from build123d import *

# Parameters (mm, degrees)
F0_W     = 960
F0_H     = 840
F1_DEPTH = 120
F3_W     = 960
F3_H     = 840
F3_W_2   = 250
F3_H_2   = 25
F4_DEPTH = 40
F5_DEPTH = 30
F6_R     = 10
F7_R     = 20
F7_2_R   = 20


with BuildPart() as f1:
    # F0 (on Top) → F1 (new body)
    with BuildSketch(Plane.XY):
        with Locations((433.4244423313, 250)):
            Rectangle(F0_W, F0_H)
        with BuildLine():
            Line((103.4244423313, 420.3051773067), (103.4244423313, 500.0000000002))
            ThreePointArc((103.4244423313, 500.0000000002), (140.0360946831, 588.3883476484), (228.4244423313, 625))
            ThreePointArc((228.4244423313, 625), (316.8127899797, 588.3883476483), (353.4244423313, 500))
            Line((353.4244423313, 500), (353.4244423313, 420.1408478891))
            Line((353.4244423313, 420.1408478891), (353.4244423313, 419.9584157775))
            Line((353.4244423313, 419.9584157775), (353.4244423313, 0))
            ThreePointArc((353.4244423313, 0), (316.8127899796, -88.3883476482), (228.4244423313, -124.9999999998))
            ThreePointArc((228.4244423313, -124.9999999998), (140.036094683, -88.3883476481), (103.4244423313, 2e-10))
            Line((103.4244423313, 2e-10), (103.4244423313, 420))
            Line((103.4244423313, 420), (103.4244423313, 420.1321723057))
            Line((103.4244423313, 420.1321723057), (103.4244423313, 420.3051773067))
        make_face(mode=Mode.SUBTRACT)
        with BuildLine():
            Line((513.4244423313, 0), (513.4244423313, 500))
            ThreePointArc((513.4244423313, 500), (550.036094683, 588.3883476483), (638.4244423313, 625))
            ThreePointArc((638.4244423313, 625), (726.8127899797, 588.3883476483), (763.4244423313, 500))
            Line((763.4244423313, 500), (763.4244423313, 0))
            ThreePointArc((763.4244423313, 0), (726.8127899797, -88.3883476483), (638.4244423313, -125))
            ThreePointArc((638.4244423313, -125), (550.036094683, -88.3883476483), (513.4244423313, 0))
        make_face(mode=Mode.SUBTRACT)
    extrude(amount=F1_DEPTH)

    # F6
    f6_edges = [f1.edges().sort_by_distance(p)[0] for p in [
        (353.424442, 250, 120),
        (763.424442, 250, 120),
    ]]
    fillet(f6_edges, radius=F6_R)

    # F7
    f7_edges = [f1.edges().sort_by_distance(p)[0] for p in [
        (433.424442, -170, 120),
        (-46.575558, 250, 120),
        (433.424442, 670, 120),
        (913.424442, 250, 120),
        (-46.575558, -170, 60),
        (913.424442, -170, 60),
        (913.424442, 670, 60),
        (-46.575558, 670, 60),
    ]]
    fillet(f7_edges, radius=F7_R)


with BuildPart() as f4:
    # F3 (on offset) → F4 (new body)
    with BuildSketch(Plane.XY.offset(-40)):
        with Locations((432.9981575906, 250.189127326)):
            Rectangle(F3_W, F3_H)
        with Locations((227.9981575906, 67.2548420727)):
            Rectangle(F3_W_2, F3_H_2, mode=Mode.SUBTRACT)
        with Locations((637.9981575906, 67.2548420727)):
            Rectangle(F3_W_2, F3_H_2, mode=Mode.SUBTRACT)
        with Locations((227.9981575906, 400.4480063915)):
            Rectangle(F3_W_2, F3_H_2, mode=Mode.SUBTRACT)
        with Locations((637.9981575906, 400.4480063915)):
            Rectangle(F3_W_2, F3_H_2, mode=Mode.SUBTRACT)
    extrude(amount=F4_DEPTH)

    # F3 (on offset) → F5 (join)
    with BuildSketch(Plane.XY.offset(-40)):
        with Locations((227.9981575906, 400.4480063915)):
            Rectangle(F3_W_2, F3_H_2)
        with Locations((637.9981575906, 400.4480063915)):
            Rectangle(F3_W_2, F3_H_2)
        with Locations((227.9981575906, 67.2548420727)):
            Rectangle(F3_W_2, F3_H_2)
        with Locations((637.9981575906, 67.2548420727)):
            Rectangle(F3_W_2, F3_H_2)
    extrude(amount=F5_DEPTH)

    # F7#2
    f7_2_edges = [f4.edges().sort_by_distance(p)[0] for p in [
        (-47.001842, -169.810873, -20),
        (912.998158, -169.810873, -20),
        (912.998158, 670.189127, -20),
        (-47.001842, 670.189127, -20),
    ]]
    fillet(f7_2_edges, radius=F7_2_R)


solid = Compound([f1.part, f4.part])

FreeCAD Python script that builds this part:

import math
import FreeCAD as App
import Part
import Sketcher

V = App.Vector


def edges_at(feature, points):
    """Names of the edges that pass closest to the given points."""
    edges = feature.Shape.Edges
    near = lambda p: min(range(len(edges)), key=lambda i: edges[i].distToShape(Part.Vertex(*p))[0])
    return sorted({f"Edge{near(p) + 1}" for p in points})

doc = App.newDocument("Part")
params = doc.addObject("Spreadsheet::Sheet", "Params")
for row, (alias, value) in enumerate([
    ("sketch1_radius", "125 mm"),
    ("sketch1_width", "960 mm"),
    ("sketch1_height", "840 mm"),
    ("sketch1_height2", "500 mm"),
    ("pad1_length", "120 mm"),
    ("fillet_radius", "10 mm"),
    ("fillet2_radius", "20 mm"),
    ("sketch2_width", "960 mm"),
    ("sketch2_width2", "250 mm"),
    ("sketch2_height", "840 mm"),
    ("sketch2_height2", "25 mm"),
    ("pad2_length", "40 mm"),
    ("sketch3_width", "250 mm"),
    ("sketch3_height", "25 mm"),
    ("pad3_length", "30 mm"),
    ("fillet3_radius", "20 mm"),
], start=1):
    params.set(f"A{row}", alias)
    params.set(f"B{row}", "=" + value)
    params.setAlias(f"B{row}", alias)

body = doc.addObject("PartDesign::Body", "Body")

sketch1 = body.newObject("Sketcher::SketchObject", "Sketch")
sketch1.AttachmentSupport = (doc.getObject("XY_Plane"), [""])
sketch1.MapMode = "FlatFace"
sketch1.addGeometry(Part.LineSegment(V(-46.575558, 670, 0), V(-46.575558, -170, 0)), False)
sketch1.addGeometry(Part.LineSegment(V(-46.575558, -170, 0), V(913.424442, -170, 0)), False)
sketch1.addGeometry(Part.LineSegment(V(913.424442, -170, 0), V(913.424442, 670, 0)), False)
sketch1.addGeometry(Part.LineSegment(V(913.424442, 670, 0), V(-46.575558, 670, 0)), False)
sketch1.addGeometry(Part.LineSegment(V(103.424442, 0, 0), V(103.424442, 500, 0)), False)
sketch1.addGeometry(Part.ArcOfCircle(Part.Circle(V(228.424442, 500, 0), V(0, 0, 1), 125), math.radians(0), math.radians(180)), False)
sketch1.addGeometry(Part.LineSegment(V(353.424442, 500, 0), V(353.424442, 0, 0)), False)
sketch1.addGeometry(Part.ArcOfCircle(Part.Circle(V(228.424442, 0, 0), V(0, 0, 1), 125), math.radians(180), math.radians(360)), False)
sketch1.addGeometry(Part.ArcOfCircle(Part.Circle(V(638.424442, 0, 0), V(0, 0, 1), 125), math.radians(180), math.radians(360)), False)
sketch1.addGeometry(Part.LineSegment(V(513.424442, 0, 0), V(513.424442, 500, 0)), False)
sketch1.addGeometry(Part.ArcOfCircle(Part.Circle(V(638.424442, 500, 0), V(0, 0, 1), 125), math.radians(0), math.radians(180)), False)
sketch1.addGeometry(Part.LineSegment(V(763.424442, 500, 0), V(763.424442, 0, 0)), False)
sketch1.addConstraint(Sketcher.Constraint("Coincident", 0, 2, 1, 1))
sketch1.addConstraint(Sketcher.Constraint("Coincident", 1, 2, 2, 1))
sketch1.addConstraint(Sketcher.Constraint("Coincident", 2, 2, 3, 1))
sketch1.addConstraint(Sketcher.Constraint("Coincident", 3, 2, 0, 1))
sketch1.addConstraint(Sketcher.Constraint("Tangent", 4, 2, 5, 2))
sketch1.addConstraint(Sketcher.Constraint("Tangent", 5, 1, 6, 1))
sketch1.addConstraint(Sketcher.Constraint("Tangent", 6, 2, 7, 2))
sketch1.addConstraint(Sketcher.Constraint("Tangent", 7, 1, 4, 1))
sketch1.addConstraint(Sketcher.Constraint("Tangent", 8, 1, 9, 1))
sketch1.addConstraint(Sketcher.Constraint("Tangent", 9, 2, 10, 2))
sketch1.addConstraint(Sketcher.Constraint("Tangent", 10, 1, 11, 1))
sketch1.addConstraint(Sketcher.Constraint("Tangent", 11, 2, 8, 2))
sketch1.addConstraint(Sketcher.Constraint("Vertical", 0))
sketch1.addConstraint(Sketcher.Constraint("Horizontal", 1))
sketch1.addConstraint(Sketcher.Constraint("Vertical", 2))
sketch1.addConstraint(Sketcher.Constraint("Horizontal", 3))
sketch1.addConstraint(Sketcher.Constraint("Vertical", 4))
sketch1.addConstraint(Sketcher.Constraint("Vertical", 6))
sketch1.addConstraint(Sketcher.Constraint("Vertical", 9))
sketch1.addConstraint(Sketcher.Constraint("Vertical", 11))
sketch1.addConstraint(Sketcher.Constraint("Equal", 7, 8))
sketch1.addConstraint(Sketcher.Constraint("PointOnObject", 7, 3, -1))
sketch1.addConstraint(Sketcher.Constraint("PointOnObject", 8, 3, -1))
sketch1.addConstraint(Sketcher.Constraint("Horizontal", 5, 3, 10, 3))
sketch1.addConstraint(Sketcher.Constraint("Radius", 5, 125.0))
sketch1.addConstraint(Sketcher.Constraint("DistanceX", 1, 1, 1, 2, 960.0))
sketch1.addConstraint(Sketcher.Constraint("DistanceY", 0, 2, 0, 1, 840.0))
sketch1.addConstraint(Sketcher.Constraint("DistanceY", 4, 1, 4, 2, 500.0))
sketch1.addConstraint(Sketcher.Constraint("DistanceY", 0, 2, -1, 1, 170.0))
sketch1.addConstraint(Sketcher.Constraint("DistanceX", 7, 3, 8, 3, 410.0))
sketch1.addConstraint(Sketcher.Constraint("DistanceX", 0, 2, 7, 3, 275.0))
sketch1.addConstraint(Sketcher.Constraint("DistanceX", -1, 1, 5, 3, 228.424442))
sketch1.setExpression("Constraints[24]", "Params.sketch1_radius")
sketch1.setExpression("Constraints[25]", "Params.sketch1_width")
sketch1.setExpression("Constraints[26]", "Params.sketch1_height")
sketch1.setExpression("Constraints[27]", "Params.sketch1_height2")
pad1 = body.newObject("PartDesign::Pad", "Pad")
pad1.Profile = sketch1
pad1.setExpression("Length", "Params.pad1_length")
doc.recompute()

fillet = body.newObject("PartDesign::Fillet", "Fillet")
fillet.Base = (pad1, edges_at(pad1, [(353.424, 250, 120), (763.424, 250, 120)]))
fillet.setExpression("Radius", "Params.fillet_radius")
doc.recompute()

fillet2 = body.newObject("PartDesign::Fillet", "Fillet001")
fillet2.Base = (fillet, edges_at(fillet, [
    (433.424, -170, 120),
    (-46.576, 250, 120),
    (433.424, 670, 120),
    (913.424, 250, 120),
    (-46.576, -170, 60),
    (913.424, -170, 60),
    (913.424, 670, 60),
    (-46.576, 670, 60),
]))
fillet2.setExpression("Radius", "Params.fillet2_radius")
body2 = doc.addObject("PartDesign::Body", "Body001")

sketch2 = body2.newObject("Sketcher::SketchObject", "Sketch001")
sketch2.AttachmentSupport = (doc.getObject("XY_Plane001"), [""])
sketch2.MapMode = "FlatFace"
sketch2.AttachmentOffset = App.Placement(V(0, 0, -40), App.Rotation())
sketch2.addGeometry(Part.LineSegment(V(-47.001842, 670.189127, 0), V(-47.001842, -169.810873, 0)), False)
sketch2.addGeometry(Part.LineSegment(V(-47.001842, -169.810873, 0), V(912.998158, -169.810873, 0)), False)
sketch2.addGeometry(Part.LineSegment(V(912.998158, -169.810873, 0), V(912.998158, 670.189127, 0)), False)
sketch2.addGeometry(Part.LineSegment(V(912.998158, 670.189127, 0), V(-47.001842, 670.189127, 0)), False)
sketch2.addGeometry(Part.LineSegment(V(352.998158, 54.754842, 0), V(102.998158, 54.754842, 0)), False)
sketch2.addGeometry(Part.LineSegment(V(102.998158, 54.754842, 0), V(102.998158, 79.754842, 0)), False)
sketch2.addGeometry(Part.LineSegment(V(102.998158, 79.754842, 0), V(352.998158, 79.754842, 0)), False)
sketch2.addGeometry(Part.LineSegment(V(352.998158, 79.754842, 0), V(352.998158, 54.754842, 0)), False)
sketch2.addGeometry(Part.LineSegment(V(762.998158, 54.754842, 0), V(512.998158, 54.754842, 0)), False)
sketch2.addGeometry(Part.LineSegment(V(512.998158, 54.754842, 0), V(512.998158, 79.754842, 0)), False)
sketch2.addGeometry(Part.LineSegment(V(512.998158, 79.754842, 0), V(762.998158, 79.754842, 0)), False)
sketch2.addGeometry(Part.LineSegment(V(762.998158, 79.754842, 0), V(762.998158, 54.754842, 0)), False)
sketch2.addGeometry(Part.LineSegment(V(352.998158, 387.948006, 0), V(102.998158, 387.948006, 0)), False)
sketch2.addGeometry(Part.LineSegment(V(102.998158, 387.948006, 0), V(102.998158, 412.948006, 0)), False)
sketch2.addGeometry(Part.LineSegment(V(102.998158, 412.948006, 0), V(352.998158, 412.948006, 0)), False)
sketch2.addGeometry(Part.LineSegment(V(352.998158, 412.948006, 0), V(352.998158, 387.948006, 0)), False)
sketch2.addGeometry(Part.LineSegment(V(762.998158, 387.948006, 0), V(512.998158, 387.948006, 0)), False)
sketch2.addGeometry(Part.LineSegment(V(512.998158, 387.948006, 0), V(512.998158, 412.948006, 0)), False)
sketch2.addGeometry(Part.LineSegment(V(512.998158, 412.948006, 0), V(762.998158, 412.948006, 0)), False)
sketch2.addGeometry(Part.LineSegment(V(762.998158, 412.948006, 0), V(762.998158, 387.948006, 0)), False)
sketch2.addConstraint(Sketcher.Constraint("Coincident", 0, 2, 1, 1))
sketch2.addConstraint(Sketcher.Constraint("Coincident", 1, 2, 2, 1))
sketch2.addConstraint(Sketcher.Constraint("Coincident", 2, 2, 3, 1))
sketch2.addConstraint(Sketcher.Constraint("Coincident", 3, 2, 0, 1))
sketch2.addConstraint(Sketcher.Constraint("Coincident", 4, 2, 5, 1))
sketch2.addConstraint(Sketcher.Constraint("Coincident", 5, 2, 6, 1))
sketch2.addConstraint(Sketcher.Constraint("Coincident", 6, 2, 7, 1))
sketch2.addConstraint(Sketcher.Constraint("Coincident", 7, 2, 4, 1))
sketch2.addConstraint(Sketcher.Constraint("Coincident", 8, 2, 9, 1))
sketch2.addConstraint(Sketcher.Constraint("Coincident", 9, 2, 10, 1))
sketch2.addConstraint(Sketcher.Constraint("Coincident", 10, 2, 11, 1))
sketch2.addConstraint(Sketcher.Constraint("Coincident", 11, 2, 8, 1))
sketch2.addConstraint(Sketcher.Constraint("Coincident", 12, 2, 13, 1))
sketch2.addConstraint(Sketcher.Constraint("Coincident", 13, 2, 14, 1))
sketch2.addConstraint(Sketcher.Constraint("Coincident", 14, 2, 15, 1))
sketch2.addConstraint(Sketcher.Constraint("Coincident", 15, 2, 12, 1))
sketch2.addConstraint(Sketcher.Constraint("Coincident", 16, 2, 17, 1))
sketch2.addConstraint(Sketcher.Constraint("Coincident", 17, 2, 18, 1))
sketch2.addConstraint(Sketcher.Constraint("Coincident", 18, 2, 19, 1))
sketch2.addConstraint(Sketcher.Constraint("Coincident", 19, 2, 16, 1))
sketch2.addConstraint(Sketcher.Constraint("Vertical", 0))
sketch2.addConstraint(Sketcher.Constraint("Horizontal", 1))
sketch2.addConstraint(Sketcher.Constraint("Vertical", 2))
sketch2.addConstraint(Sketcher.Constraint("Horizontal", 3))
sketch2.addConstraint(Sketcher.Constraint("Horizontal", 4))
sketch2.addConstraint(Sketcher.Constraint("Vertical", 5))
sketch2.addConstraint(Sketcher.Constraint("Horizontal", 6))
sketch2.addConstraint(Sketcher.Constraint("Vertical", 7))
sketch2.addConstraint(Sketcher.Constraint("Horizontal", 8))
sketch2.addConstraint(Sketcher.Constraint("Vertical", 9))
sketch2.addConstraint(Sketcher.Constraint("Horizontal", 10))
sketch2.addConstraint(Sketcher.Constraint("Vertical", 11))
sketch2.addConstraint(Sketcher.Constraint("Horizontal", 12))
sketch2.addConstraint(Sketcher.Constraint("Vertical", 13))
sketch2.addConstraint(Sketcher.Constraint("Horizontal", 14))
sketch2.addConstraint(Sketcher.Constraint("Vertical", 15))
sketch2.addConstraint(Sketcher.Constraint("Horizontal", 16))
sketch2.addConstraint(Sketcher.Constraint("Vertical", 17))
sketch2.addConstraint(Sketcher.Constraint("Horizontal", 18))
sketch2.addConstraint(Sketcher.Constraint("Vertical", 19))
sketch2.addConstraint(Sketcher.Constraint("Horizontal", 7, 2, 8, 2))
sketch2.addConstraint(Sketcher.Constraint("Horizontal", 6, 2, 9, 2))
sketch2.addConstraint(Sketcher.Constraint("Horizontal", 15, 2, 16, 2))
sketch2.addConstraint(Sketcher.Constraint("Horizontal", 14, 2, 17, 2))
sketch2.addConstraint(Sketcher.Constraint("Vertical", 5, 2, 12, 2))
sketch2.addConstraint(Sketcher.Constraint("Vertical", 7, 2, 14, 2))
sketch2.addConstraint(Sketcher.Constraint("Vertical", 9, 2, 16, 2))
sketch2.addConstraint(Sketcher.Constraint("Vertical", 11, 2, 18, 2))
sketch2.addConstraint(Sketcher.Constraint("Equal", 6, 8))
sketch2.addConstraint(Sketcher.Constraint("Equal", 11, 13))
sketch2.addConstraint(Sketcher.Constraint("DistanceX", 1, 1, 1, 2, 960.0))
sketch2.addConstraint(Sketcher.Constraint("DistanceX", 4, 2, 4, 1, 250.0))
sketch2.addConstraint(Sketcher.Constraint("DistanceY", 0, 2, 0, 1, 840.0))
sketch2.addConstraint(Sketcher.Constraint("DistanceY", 5, 1, 5, 2, 25.0))
sketch2.addConstraint(Sketcher.Constraint("DistanceX", 0, 2, 4, 2, 150.0))
sketch2.addConstraint(Sketcher.Constraint("DistanceX", 7, 2, 8, 2, 160.0))
sketch2.addConstraint(Sketcher.Constraint("DistanceY", 12, 2, 3, 2, 282.241121))
sketch2.addConstraint(Sketcher.Constraint("DistanceX", 0, 2, -1, 1, 47.001842))
sketch2.addConstraint(Sketcher.Constraint("DistanceY", 0, 2, -1, 1, 169.810873))
sketch2.addConstraint(Sketcher.Constraint("DistanceY", -1, 1, 4, 2, 54.754842))
sketch2.setExpression("Constraints[50]", "Params.sketch2_width")
sketch2.setExpression("Constraints[51]", "Params.sketch2_width2")
sketch2.setExpression("Constraints[52]", "Params.sketch2_height")
sketch2.setExpression("Constraints[53]", "Params.sketch2_height2")
pad2 = body2.newObject("PartDesign::Pad", "Pad001")
pad2.Profile = sketch2
pad2.setExpression("Length", "Params.pad2_length")

sketch3 = body2.newObject("Sketcher::SketchObject", "Sketch002")
sketch3.AttachmentSupport = (doc.getObject("XY_Plane001"), [""])
sketch3.MapMode = "FlatFace"
sketch3.AttachmentOffset = App.Placement(V(0, 0, -40), App.Rotation())
sketch3.addGeometry(Part.LineSegment(V(102.998158, 412.948006, 0), V(102.998158, 387.948006, 0)), False)
sketch3.addGeometry(Part.LineSegment(V(102.998158, 387.948006, 0), V(352.998158, 387.948006, 0)), False)
sketch3.addGeometry(Part.LineSegment(V(352.998158, 387.948006, 0), V(352.998158, 412.948006, 0)), False)
sketch3.addGeometry(Part.LineSegment(V(352.998158, 412.948006, 0), V(102.998158, 412.948006, 0)), False)
sketch3.addGeometry(Part.LineSegment(V(512.998158, 412.948006, 0), V(512.998158, 387.948006, 0)), False)
sketch3.addGeometry(Part.LineSegment(V(512.998158, 387.948006, 0), V(762.998158, 387.948006, 0)), False)
sketch3.addGeometry(Part.LineSegment(V(762.998158, 387.948006, 0), V(762.998158, 412.948006, 0)), False)
sketch3.addGeometry(Part.LineSegment(V(762.998158, 412.948006, 0), V(512.998158, 412.948006, 0)), False)
sketch3.addGeometry(Part.LineSegment(V(102.998158, 79.754842, 0), V(102.998158, 54.754842, 0)), False)
sketch3.addGeometry(Part.LineSegment(V(102.998158, 54.754842, 0), V(352.998158, 54.754842, 0)), False)
sketch3.addGeometry(Part.LineSegment(V(352.998158, 54.754842, 0), V(352.998158, 79.754842, 0)), False)
sketch3.addGeometry(Part.LineSegment(V(352.998158, 79.754842, 0), V(102.998158, 79.754842, 0)), False)
sketch3.addGeometry(Part.LineSegment(V(512.998158, 79.754842, 0), V(512.998158, 54.754842, 0)), False)
sketch3.addGeometry(Part.LineSegment(V(512.998158, 54.754842, 0), V(762.998158, 54.754842, 0)), False)
sketch3.addGeometry(Part.LineSegment(V(762.998158, 54.754842, 0), V(762.998158, 79.754842, 0)), False)
sketch3.addGeometry(Part.LineSegment(V(762.998158, 79.754842, 0), V(512.998158, 79.754842, 0)), False)
sketch3.addConstraint(Sketcher.Constraint("Coincident", 0, 2, 1, 1))
sketch3.addConstraint(Sketcher.Constraint("Coincident", 1, 2, 2, 1))
sketch3.addConstraint(Sketcher.Constraint("Coincident", 2, 2, 3, 1))
sketch3.addConstraint(Sketcher.Constraint("Coincident", 3, 2, 0, 1))
sketch3.addConstraint(Sketcher.Constraint("Coincident", 4, 2, 5, 1))
sketch3.addConstraint(Sketcher.Constraint("Coincident", 5, 2, 6, 1))
sketch3.addConstraint(Sketcher.Constraint("Coincident", 6, 2, 7, 1))
sketch3.addConstraint(Sketcher.Constraint("Coincident", 7, 2, 4, 1))
sketch3.addConstraint(Sketcher.Constraint("Coincident", 8, 2, 9, 1))
sketch3.addConstraint(Sketcher.Constraint("Coincident", 9, 2, 10, 1))
sketch3.addConstraint(Sketcher.Constraint("Coincident", 10, 2, 11, 1))
sketch3.addConstraint(Sketcher.Constraint("Coincident", 11, 2, 8, 1))
sketch3.addConstraint(Sketcher.Constraint("Coincident", 12, 2, 13, 1))
sketch3.addConstraint(Sketcher.Constraint("Coincident", 13, 2, 14, 1))
sketch3.addConstraint(Sketcher.Constraint("Coincident", 14, 2, 15, 1))
sketch3.addConstraint(Sketcher.Constraint("Coincident", 15, 2, 12, 1))
sketch3.addConstraint(Sketcher.Constraint("Vertical", 0))
sketch3.addConstraint(Sketcher.Constraint("Horizontal", 1))
sketch3.addConstraint(Sketcher.Constraint("Vertical", 2))
sketch3.addConstraint(Sketcher.Constraint("Horizontal", 3))
sketch3.addConstraint(Sketcher.Constraint("Vertical", 4))
sketch3.addConstraint(Sketcher.Constraint("Horizontal", 5))
sketch3.addConstraint(Sketcher.Constraint("Vertical", 6))
sketch3.addConstraint(Sketcher.Constraint("Horizontal", 7))
sketch3.addConstraint(Sketcher.Constraint("Vertical", 8))
sketch3.addConstraint(Sketcher.Constraint("Horizontal", 9))
sketch3.addConstraint(Sketcher.Constraint("Vertical", 10))
sketch3.addConstraint(Sketcher.Constraint("Horizontal", 11))
sketch3.addConstraint(Sketcher.Constraint("Vertical", 12))
sketch3.addConstraint(Sketcher.Constraint("Horizontal", 13))
sketch3.addConstraint(Sketcher.Constraint("Vertical", 14))
sketch3.addConstraint(Sketcher.Constraint("Horizontal", 15))
sketch3.addConstraint(Sketcher.Constraint("Horizontal", 1, 2, 4, 2))
sketch3.addConstraint(Sketcher.Constraint("Horizontal", 3, 2, 6, 2))
sketch3.addConstraint(Sketcher.Constraint("Horizontal", 9, 2, 12, 2))
sketch3.addConstraint(Sketcher.Constraint("Horizontal", 11, 2, 14, 2))
sketch3.addConstraint(Sketcher.Constraint("Vertical", 3, 2, 8, 2))
sketch3.addConstraint(Sketcher.Constraint("Vertical", 2, 2, 9, 2))
sketch3.addConstraint(Sketcher.Constraint("Vertical", 7, 2, 12, 2))
sketch3.addConstraint(Sketcher.Constraint("Vertical", 6, 2, 13, 2))
sketch3.addConstraint(Sketcher.Constraint("Equal", 3, 5))
sketch3.addConstraint(Sketcher.Constraint("Equal", 6, 8))
sketch3.addConstraint(Sketcher.Constraint("DistanceX", 1, 1, 1, 2, 250.0))
sketch3.addConstraint(Sketcher.Constraint("DistanceY", 0, 2, 0, 1, 25.0))
sketch3.addConstraint(Sketcher.Constraint("DistanceX", 1, 2, 4, 2, 160.0))
sketch3.addConstraint(Sketcher.Constraint("DistanceX", -1, 1, 0, 2, 102.998158))
sketch3.addConstraint(Sketcher.Constraint("DistanceY", -1, 1, 0, 2, 387.948006))
sketch3.addConstraint(Sketcher.Constraint("DistanceY", -1, 1, 8, 2, 54.754842))
sketch3.setExpression("Constraints[42]", "Params.sketch3_width")
sketch3.setExpression("Constraints[43]", "Params.sketch3_height")
pad3 = body2.newObject("PartDesign::Pad", "Pad002")
pad3.Profile = sketch3
pad3.setExpression("Length", "Params.pad3_length")
doc.recompute()

fillet3 = body2.newObject("PartDesign::Fillet", "Fillet002")
fillet3.Base = (pad3, edges_at(pad3, [
    (-47.002, -169.811, -20),
    (912.998, -169.811, -20),
    (912.998, 670.189, -20),
    (-47.002, 670.189, -20),
]))
fillet3.setExpression("Radius", "Params.fillet3_radius")

doc.recompute()
